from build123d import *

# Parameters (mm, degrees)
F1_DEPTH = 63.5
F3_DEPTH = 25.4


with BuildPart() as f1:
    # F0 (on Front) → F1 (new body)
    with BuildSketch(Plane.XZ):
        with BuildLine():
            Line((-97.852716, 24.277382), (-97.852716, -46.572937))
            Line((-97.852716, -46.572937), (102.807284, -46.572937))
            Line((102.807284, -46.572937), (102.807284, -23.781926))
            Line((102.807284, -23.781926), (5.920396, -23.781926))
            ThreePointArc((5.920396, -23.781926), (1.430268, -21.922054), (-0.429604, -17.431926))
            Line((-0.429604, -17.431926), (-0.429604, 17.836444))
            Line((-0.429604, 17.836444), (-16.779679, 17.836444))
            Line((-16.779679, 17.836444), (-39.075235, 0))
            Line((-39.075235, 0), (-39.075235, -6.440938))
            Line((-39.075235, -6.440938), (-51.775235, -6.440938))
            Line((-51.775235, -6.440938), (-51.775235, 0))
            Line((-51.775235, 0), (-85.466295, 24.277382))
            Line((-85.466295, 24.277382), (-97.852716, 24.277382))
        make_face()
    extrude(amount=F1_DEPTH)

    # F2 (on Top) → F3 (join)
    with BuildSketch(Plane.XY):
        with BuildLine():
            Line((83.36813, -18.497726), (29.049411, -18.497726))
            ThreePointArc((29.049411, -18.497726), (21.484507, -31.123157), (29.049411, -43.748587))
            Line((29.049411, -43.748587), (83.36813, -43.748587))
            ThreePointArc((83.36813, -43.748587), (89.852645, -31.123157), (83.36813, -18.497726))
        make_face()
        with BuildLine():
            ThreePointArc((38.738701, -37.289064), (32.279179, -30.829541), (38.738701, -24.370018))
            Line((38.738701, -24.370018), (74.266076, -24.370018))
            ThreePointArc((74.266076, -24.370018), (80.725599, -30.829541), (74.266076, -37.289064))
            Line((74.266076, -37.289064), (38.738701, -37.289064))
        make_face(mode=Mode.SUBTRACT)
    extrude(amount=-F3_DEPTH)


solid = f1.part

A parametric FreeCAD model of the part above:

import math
import FreeCAD as App
import Part
import Sketcher
from FreeCAD import Vector
Q = App.Units.Quantity

doc = App.newDocument("Part")
params = doc.addObject("Spreadsheet::Sheet", "Params")
for row, (alias, value) in enumerate([
    ("sketch1_radius", "0.25 in"),
    ("sketch1_width", "7.9 in"),
    ("sketch1_width2", "0.5 in"),
    ("pad1_length", "2.5 in"),
    ("pad2_length", "1 in"),
], start=1):
    params.set(f"A{row}", alias)
    params.set(f"B{row}", "=" + value)
    params.setAlias(f"B{row}", alias)

body = doc.addObject("PartDesign::Body", "Body")

# Sketch on XZ plane
sketch1 = body.newObject("Sketcher::SketchObject", "Sketch")
sketch1.AttachmentSupport = (doc.getObject("XZ_Plane"), [""])
sketch1.MapMode = "FlatFace"
sketch1.addGeometry(Part.LineSegment(Vector(-98, 24, 0), Vector(-98, -47, 0)), False)
sketch1.addGeometry(Part.LineSegment(Vector(-98, -47, 0), Vector(103, -47, 0)), False)
sketch1.addGeometry(Part.LineSegment(Vector(103, -47, 0), Vector(103, -24, 0)), False)
sketch1.addGeometry(Part.LineSegment(Vector(103, -24, 0), Vector(6, -24, 0)), False)
sketch1.addGeometry(Part.ArcOfCircle(Part.Circle(Vector(6, -17, 0), Vector(0, 0, 1), 6), math.radians(-180), math.radians(-90)), False)
sketch1.addGeometry(Part.LineSegment(Vector(0, -17, 0), Vector(0, 18, 0)), False)
sketch1.addGeometry(Part.LineSegment(Vector(0, 18, 0), Vector(-17, 18, 0)), False)
sketch1.addGeometry(Part.LineSegment(Vector(-17, 18, 0), Vector(-39, 0, 0)), False)
sketch1.addGeometry(Part.LineSegment(Vector(-39, 0, 0), Vector(-39, -6, 0)), False)
sketch1.addGeometry(Part.LineSegment(Vector(-39, -6, 0), Vector(-52, -6, 0)), False)
sketch1.addGeometry(Part.LineSegment(Vector(-52, -6, 0), Vector(-52, 0, 0)), False)
sketch1.addGeometry(Part.LineSegment(Vector(-52, 0, 0), Vector(-85, 24, 0)), False)
sketch1.addGeometry(Part.LineSegment(Vector(-85, 24, 0), Vector(-98, 24, 0)), False)
sketch1.addConstraint(Sketcher.Constraint("Coincident", 0, 2, 1, 1))
sketch1.addConstraint(Sketcher.Constraint("Coincident", 1, 2, 2, 1))
sketch1.addConstraint(Sketcher.Constraint("Coincident", 2, 2, 3, 1))
sketch1.addConstraint(Sketcher.Constraint("Tangent", 3, 2, 4, 2))
sketch1.addConstraint(Sketcher.Constraint("Tangent", 4, 1, 5, 1))
sketch1.addConstraint(Sketcher.Constraint("Coincident", 5, 2, 6, 1))
sketch1.addConstraint(Sketcher.Constraint("Coincident", 6, 2, 7, 1))
sketch1.addConstraint(Sketcher.Constraint("Coincident", 7, 2, 8, 1))
sketch1.addConstraint(Sketcher.Constraint("Coincident", 8, 2, 9, 1))
sketch1.addConstraint(Sketcher.Constraint("Coincident", 9, 2, 10, 1))
sketch1.addConstraint(Sketcher.Constraint("Coincident", 10, 2, 11, 1))
sketch1.addConstraint(Sketcher.Constraint("Coincident", 11, 2, 12, 1))
sketch1.addConstraint(Sketcher.Constraint("Coincident", 12, 2, 0, 1))
sketch1.addConstraint(Sketcher.Constraint("Vertical", 0))
sketch1.addConstraint(Sketcher.Constraint("Horizontal", 1))
sketch1.addConstraint(Sketcher.Constraint("Vertical", 2))
sketch1.addConstraint(Sketcher.Constraint("Horizontal", 3))
sketch1.addConstraint(Sketcher.Constraint("Vertical", 5))
sketch1.addConstraint(Sketcher.Constraint("Horizontal", 6))
sketch1.addConstraint(Sketcher.Constraint("Vertical", 8))
sketch1.addConstraint(Sketcher.Constraint("Horizontal", 9))
sketch1.addConstraint(Sketcher.Constraint("Vertical", 10))
sketch1.addConstraint(Sketcher.Constraint("Horizontal", 12))
sketch1.addConstraint(Sketcher.Constraint("PointOnObject", 7, 2, -1))
sketch1.addConstraint(Sketcher.Constraint("PointOnObject", 10, 2, -1))
sketch1.addConstraint(Sketcher.Constraint("Radius", 4, Q("0.25 in")))
sketch1.addConstraint(Sketcher.Constraint("DistanceX", 1, 1, 1, 2, Q("7.9 in")))
sketch1.addConstraint(Sketcher.Constraint("DistanceX", 9, 2, 9, 1, Q("0.5 in")))
sketch1.addConstraint(Sketcher.Constraint("DistanceX", 3, 2, 3, 1, Q("96.886888 mm")))
sketch1.addConstraint(Sketcher.Constraint("DistanceX", 12, 2, 12, 1, Q("12.386421 mm")))
sketch1.addConstraint(Sketcher.Constraint("DistanceY", 0, 2, 0, 1, Q("70.850319 mm")))
sketch1.addConstraint(Sketcher.Constraint("DistanceY", 2, 1, 2, 2, Q("22.791011 mm")))
sketch1.addConstraint(Sketcher.Constraint("DistanceY", 5, 1, 5, 2, Q("35.26837 mm")))
sketch1.addConstraint(Sketcher.Constraint("DistanceX", 6, 2, 6, 1, Q("16.350075 mm")))
sketch1.addConstraint(Sketcher.Constraint("DistanceY", 8, 2, 8, 1, Q("6.440938 mm")))
sketch1.addConstraint(Sketcher.Constraint("DistanceX", 6, 2, -1, 1, Q("16.779679 mm")))
sketch1.addConstraint(Sketcher.Constraint("DistanceY", -1, 1, 11, 2, Q("24.277382 mm")))
sketch1.addConstraint(Sketcher.Constraint("DistanceX", 7, 2, 4, 1, Q("38.645631 mm")))
sketch1.setExpression("Constraints[25]", "Params.sketch1_radius")
sketch1.setExpression("Constraints[26]", "Params.sketch1_width")
sketch1.setExpression("Constraints[27]", "Params.sketch1_width2")
pad1 = body.newObject("PartDesign::Pad", "Pad")
pad1.Profile = sketch1
pad1.setExpression("Length", "Params.pad1_length")

# Sketch on XY plane
sketch2 = body.newObject("Sketcher::SketchObject", "Sketch001")
sketch2.AttachmentSupport = (doc.getObject("XY_Plane"), [""])
sketch2.MapMode = "FlatFace"
sketch2.addGeometry(Part.LineSegment(Vector(83, -18, 0), Vector(29, -18, 0)), False)
sketch2.addGeometry(Part.ArcOfCircle(Part.Circle(Vector(36, -31, 0), Vector(0, 0, 1), 14), math.radians(118), math.radians(242)), False)
sketch2.addGeometry(Part.LineSegment(Vector(29, -44, 0), Vector(83, -44, 0)), False)
sketch2.addGeometry(Part.ArcOfCircle(Part.Circle(Vector(74, -31, 0), Vector(0, 0, 1), 16), math.radians(-54), math.radians(54)), False)
sketch2.addGeometry(Part.LineSegment(Vector(74, -37, 0), Vector(39, -37, 0)), False)
sketch2.addGeometry(Part.ArcOfCircle(Part.Circle(Vector(39, -31, 0), Vector(0, 0, 1), 6), math.radians(90), math.radians(270)), False)
sketch2.addGeometry(Part.LineSegment(Vector(39, -24, 0), Vector(74, -24, 0)), False)
sketch2.addGeometry(Part.ArcOfCircle(Part.Circle(Vector(74, -31, 0), Vector(0, 0, 1), 6), math.radians(-90), math.radians(90)), False)
sketch2.addConstraint(Sketcher.Constraint("Coincident", 0, 2, 1, 1))
sketch2.addConstraint(Sketcher.Constraint("Coincident", 1, 2, 2, 1))
sketch2.addConstraint(Sketcher.Constraint("Coincident", 2, 2, 3, 1))
sketch2.addConstraint(Sketcher.Constraint("Coincident", 3, 2, 0, 1))
sketch2.addConstraint(Sketcher.Constraint("Tangent", 4, 2, 5, 2))
sketch2.addConstraint(Sketcher.Constraint("Tangent", 5, 1, 6, 1))
sketch2.addConstraint(Sketcher.Constraint("Tangent", 6, 2, 7, 2))
sketch2.addConstraint(Sketcher.Constraint("Tangent", 7, 1, 4, 1))
sketch2.addConstraint(Sketcher.Constraint("Horizontal", 0))
sketch2.addConstraint(Sketcher.Constraint("Horizontal", 2))
sketch2.addConstraint(Sketcher.Constraint("Horizontal", 4))
sketch2.addConstraint(Sketcher.Constraint("Horizontal", 6))
sketch2.addConstraint(Sketcher.Constraint("Horizontal", 1, 3, 3, 3))
sketch2.addConstraint(Sketcher.Constraint("Vertical", 0, 2, 1, 2))
sketch2.addConstraint(Sketcher.Constraint("Radius", 3, Q("15.533192 mm")))
sketch2.addConstraint(Sketcher.Constraint("Radius", 1, Q("14.318045 mm")))
sketch2.addConstraint(Sketcher.Constraint("Radius", 5, Q("6.459523 mm")))
sketch2.addConstraint(Sketcher.Constraint("DistanceX", 0, 2, 0, 1, Q("54.318719 mm")))
sketch2.addConstraint(Sketcher.Constraint("DistanceX", -1, 1, 4, 2, Q("38.738701 mm")))
sketch2.addConstraint(Sketcher.Constraint("DistanceX", 1, 3, 3, 3, Q("38.516901 mm")))
sketch2.addConstraint(Sketcher.Constraint("DistanceX", 4, 2, 4, 1, Q("35.527375 mm")))
sketch2.addConstraint(Sketcher.Constraint("DistanceX", -1, 1, 1, 3, Q("35.802552 mm")))
sketch2.addConstraint(Sketcher.Constraint("DistanceY", 5, 3, -1, 1, Q("30.829541 mm")))
sketch2.addConstraint(Sketcher.Constraint("DistanceY", 4, 2, 0, 2, Q("18.791338 mm")))
pad2 = body.newObject("PartDesign::Pad", "Pad001")
pad2.Profile = sketch2
pad2.setExpression("Length", "Params.pad2_length")
pad2.Reversed = True

doc.recompute()
